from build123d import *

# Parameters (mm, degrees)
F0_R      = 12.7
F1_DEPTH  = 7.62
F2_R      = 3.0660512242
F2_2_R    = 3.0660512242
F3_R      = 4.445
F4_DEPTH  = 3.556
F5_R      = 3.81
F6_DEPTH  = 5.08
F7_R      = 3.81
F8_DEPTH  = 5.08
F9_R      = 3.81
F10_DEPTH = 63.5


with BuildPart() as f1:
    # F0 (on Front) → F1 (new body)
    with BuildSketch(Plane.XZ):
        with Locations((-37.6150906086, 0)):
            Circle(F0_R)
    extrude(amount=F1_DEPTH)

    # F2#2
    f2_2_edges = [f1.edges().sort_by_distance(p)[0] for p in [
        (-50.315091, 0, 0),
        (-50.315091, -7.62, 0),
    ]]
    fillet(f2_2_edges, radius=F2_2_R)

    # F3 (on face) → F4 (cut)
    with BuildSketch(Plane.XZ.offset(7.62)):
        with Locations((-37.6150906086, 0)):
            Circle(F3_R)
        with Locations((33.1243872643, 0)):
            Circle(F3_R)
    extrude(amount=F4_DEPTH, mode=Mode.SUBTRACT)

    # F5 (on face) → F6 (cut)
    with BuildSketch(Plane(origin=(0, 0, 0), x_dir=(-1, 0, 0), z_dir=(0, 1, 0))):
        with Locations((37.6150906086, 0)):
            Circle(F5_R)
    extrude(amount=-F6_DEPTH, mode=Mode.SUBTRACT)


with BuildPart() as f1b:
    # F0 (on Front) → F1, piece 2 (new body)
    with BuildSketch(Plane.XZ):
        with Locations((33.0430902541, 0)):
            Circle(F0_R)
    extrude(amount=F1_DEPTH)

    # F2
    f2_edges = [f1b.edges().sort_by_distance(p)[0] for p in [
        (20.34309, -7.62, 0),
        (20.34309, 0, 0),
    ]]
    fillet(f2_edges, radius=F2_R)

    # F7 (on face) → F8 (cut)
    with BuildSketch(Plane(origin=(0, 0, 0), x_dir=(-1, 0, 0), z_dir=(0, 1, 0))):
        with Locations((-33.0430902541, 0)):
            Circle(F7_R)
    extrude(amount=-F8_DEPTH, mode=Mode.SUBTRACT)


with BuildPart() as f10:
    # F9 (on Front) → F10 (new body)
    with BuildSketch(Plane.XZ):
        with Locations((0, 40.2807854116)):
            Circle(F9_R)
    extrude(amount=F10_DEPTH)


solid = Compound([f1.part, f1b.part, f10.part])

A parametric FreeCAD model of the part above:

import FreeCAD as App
import Part
import Sketcher
from FreeCAD import Vector
Q = App.Units.Quantity


def edges_at(feature, points):
    """Names of the edges that pass closest to the given points."""
    edges = feature.Shape.Edges
    near = lambda p: min(range(len(edges)), key=lambda i: edges[i].distToShape(Part.Vertex(*p))[0])
    return sorted({f"Edge{near(p) + 1}" for p in points})

doc = App.newDocument("Part")
body = doc.addObject("PartDesign::Body", "Body")

# Sketch on XZ plane
sketch1 = body.newObject("Sketcher::SketchObject", "Sketch")
sketch1.AttachmentSupport = (doc.getObject("XZ_Plane"), [""])
sketch1.MapMode = "FlatFace"
sketch1.addGeometry(Part.Circle(Vector(-37.615091, 0, 0), Vector(0, 0, 1), 12.7), False)
sketch1.addConstraint(Sketcher.Constraint("PointOnObject", 0, 3, -1))
sketch1.addConstraint(Sketcher.Constraint("Diameter", 0, Q("1 in")))
sketch1.addConstraint(Sketcher.Constraint("DistanceX", 0, 3, -1, 1, 37.615091))
pad1 = body.newObject("PartDesign::Pad", "Pad")
pad1.Profile = sketch1
pad1.Length = Q("0.3 in")
doc.recompute()

fillet = body.newObject("PartDesign::Fillet", "Fillet")
fillet.Base = (pad1, edges_at(pad1, [(-50.315, 0, 0), (-50.315, -7.62, 0)]))
fillet.Radius = 3.066051

# Sketch on XZ plane
sketch2 = body.newObject("Sketcher::SketchObject", "Sketch001")
sketch2.AttachmentSupport = (doc.getObject("XZ_Plane"), [""])
sketch2.MapMode = "FlatFace"
sketch2.AttachmentOffset = App.Placement(Vector(0, 0, 0.3 * 25.4), App.Rotation())
sketch2.addGeometry(Part.Circle(Vector(-37.615091, 0, 0), Vector(0, 0, 1), 4.445), False)
sketch2.addGeometry(Part.Circle(Vector(33.124387, 0, 0), Vector(0, 0, 1), 4.445), False)
sketch2.addConstraint(Sketcher.Constraint("Equal", 0, 1))
sketch2.addConstraint(Sketcher.Constraint("PointOnObject", 0, 3, -1))
sketch2.addConstraint(Sketcher.Constraint("PointOnObject", 1, 3, -1))
sketch2.addConstraint(Sketcher.Constraint("Diameter", 0, Q("0.35 in")))
sketch2.addConstraint(Sketcher.Constraint("DistanceX", 0, 3, -1, 1, 37.615091))
sketch2.addConstraint(Sketcher.Constraint("DistanceX", -1, 1, 1, 3, 33.124387))
pocket1 = body.newObject("PartDesign::Pocket", "Pocket")
pocket1.Profile = sketch2
pocket1.Length = Q("0.14 in")
pocket1.Reversed = True

# Sketch on XZ plane
sketch3 = body.newObject("Sketcher::SketchObject", "Sketch002")
sketch3.AttachmentSupport = (doc.getObject("XZ_Plane"), [""])
sketch3.MapMode = "FlatFace"
sketch3.addGeometry(Part.Circle(Vector(-37.615091, 0, 0), Vector(0, 0, 1), 3.81), False)
sketch3.addConstraint(Sketcher.Constraint("PointOnObject", 0, 3, -1))
sketch3.addConstraint(Sketcher.Constraint("Diameter", 0, Q("0.3 in")))
sketch3.addConstraint(Sketcher.Constraint("DistanceX", 0, 3, -1, 1, 37.615091))
pocket2 = body.newObject("PartDesign::Pocket", "Pocket001")
pocket2.Profile = sketch3
pocket2.Length = Q("0.2 in")
pocket2.Reversed = True
body2 = doc.addObject("PartDesign::Body", "Body001")

# Sketch on XZ plane
sketch4 = body2.newObject("Sketcher::SketchObject", "Sketch003")
sketch4.AttachmentSupport = (doc.getObject("XZ_Plane001"), [""])
sketch4.MapMode = "FlatFace"
sketch4.addGeometry(Part.Circle(Vector(33.04309, 0, 0), Vector(0, 0, 1), 12.7), False)
sketch4.addConstraint(Sketcher.Constraint("PointOnObject", 0, 3, -1))
sketch4.addConstraint(Sketcher.Constraint("Diameter", 0, Q("1 in")))
sketch4.addConstraint(Sketcher.Constraint("DistanceX", -1, 1, 0, 3, 33.04309))
pad2 = body2.newObject("PartDesign::Pad", "Pad001")
pad2.Profile = sketch4
pad2.Length = Q("0.3 in")
doc.recompute()

fillet2 = body2.newObject("PartDesign::Fillet", "Fillet001")
fillet2.Base = (pad2, edges_at(pad2, [(20.343, -7.62, 0), (20.343, 0, 0)]))
fillet2.Radius = 3.066051

# Sketch on XZ plane
sketch5 = body2.newObject("Sketcher::SketchObject", "Sketch004")
sketch5.AttachmentSupport = (doc.getObject("XZ_Plane001"), [""])
sketch5.MapMode = "FlatFace"
sketch5.addGeometry(Part.Circle(Vector(33.04309, 0, 0), Vector(0, 0, 1), 3.81), False)
sketch5.addConstraint(Sketcher.Constraint("PointOnObject", 0, 3, -1))
sketch5.addConstraint(Sketcher.Constraint("Diameter", 0, Q("0.3 in")))
sketch5.addConstraint(Sketcher.Constraint("DistanceX", -1, 1, 0, 3, 33.04309))
pocket3 = body2.newObject("PartDesign::Pocket", "Pocket002")
pocket3.Profile = sketch5
pocket3.Length = Q("0.2 in")
pocket3.Reversed = True
body3 = doc.addObject("PartDesign::Body", "Body002")

# Sketch on XZ plane
sketch6 = body3.newObject("Sketcher::SketchObject", "Sketch005")
sketch6.AttachmentSupport = (doc.getObject("XZ_Plane002"), [""])
sketch6.MapMode = "FlatFace"
sketch6.addGeometry(Part.Circle(Vector(0, 40.280785, 0), Vector(0, 0, 1), 3.81), False)
sketch6.addConstraint(Sketcher.Constraint("PointOnObject", 0, 3, -2))
sketch6.addConstraint(Sketcher.Constraint("Diameter", 0, Q("0.3 in")))
sketch6.addConstraint(Sketcher.Constraint("DistanceY", -1, 1, 0, 3, 40.280785))
pad3 = body3.newObject("PartDesign::Pad", "Pad002")
pad3.Profile = sketch6
pad3.Length = Q("2.5 in")

doc.recompute()
